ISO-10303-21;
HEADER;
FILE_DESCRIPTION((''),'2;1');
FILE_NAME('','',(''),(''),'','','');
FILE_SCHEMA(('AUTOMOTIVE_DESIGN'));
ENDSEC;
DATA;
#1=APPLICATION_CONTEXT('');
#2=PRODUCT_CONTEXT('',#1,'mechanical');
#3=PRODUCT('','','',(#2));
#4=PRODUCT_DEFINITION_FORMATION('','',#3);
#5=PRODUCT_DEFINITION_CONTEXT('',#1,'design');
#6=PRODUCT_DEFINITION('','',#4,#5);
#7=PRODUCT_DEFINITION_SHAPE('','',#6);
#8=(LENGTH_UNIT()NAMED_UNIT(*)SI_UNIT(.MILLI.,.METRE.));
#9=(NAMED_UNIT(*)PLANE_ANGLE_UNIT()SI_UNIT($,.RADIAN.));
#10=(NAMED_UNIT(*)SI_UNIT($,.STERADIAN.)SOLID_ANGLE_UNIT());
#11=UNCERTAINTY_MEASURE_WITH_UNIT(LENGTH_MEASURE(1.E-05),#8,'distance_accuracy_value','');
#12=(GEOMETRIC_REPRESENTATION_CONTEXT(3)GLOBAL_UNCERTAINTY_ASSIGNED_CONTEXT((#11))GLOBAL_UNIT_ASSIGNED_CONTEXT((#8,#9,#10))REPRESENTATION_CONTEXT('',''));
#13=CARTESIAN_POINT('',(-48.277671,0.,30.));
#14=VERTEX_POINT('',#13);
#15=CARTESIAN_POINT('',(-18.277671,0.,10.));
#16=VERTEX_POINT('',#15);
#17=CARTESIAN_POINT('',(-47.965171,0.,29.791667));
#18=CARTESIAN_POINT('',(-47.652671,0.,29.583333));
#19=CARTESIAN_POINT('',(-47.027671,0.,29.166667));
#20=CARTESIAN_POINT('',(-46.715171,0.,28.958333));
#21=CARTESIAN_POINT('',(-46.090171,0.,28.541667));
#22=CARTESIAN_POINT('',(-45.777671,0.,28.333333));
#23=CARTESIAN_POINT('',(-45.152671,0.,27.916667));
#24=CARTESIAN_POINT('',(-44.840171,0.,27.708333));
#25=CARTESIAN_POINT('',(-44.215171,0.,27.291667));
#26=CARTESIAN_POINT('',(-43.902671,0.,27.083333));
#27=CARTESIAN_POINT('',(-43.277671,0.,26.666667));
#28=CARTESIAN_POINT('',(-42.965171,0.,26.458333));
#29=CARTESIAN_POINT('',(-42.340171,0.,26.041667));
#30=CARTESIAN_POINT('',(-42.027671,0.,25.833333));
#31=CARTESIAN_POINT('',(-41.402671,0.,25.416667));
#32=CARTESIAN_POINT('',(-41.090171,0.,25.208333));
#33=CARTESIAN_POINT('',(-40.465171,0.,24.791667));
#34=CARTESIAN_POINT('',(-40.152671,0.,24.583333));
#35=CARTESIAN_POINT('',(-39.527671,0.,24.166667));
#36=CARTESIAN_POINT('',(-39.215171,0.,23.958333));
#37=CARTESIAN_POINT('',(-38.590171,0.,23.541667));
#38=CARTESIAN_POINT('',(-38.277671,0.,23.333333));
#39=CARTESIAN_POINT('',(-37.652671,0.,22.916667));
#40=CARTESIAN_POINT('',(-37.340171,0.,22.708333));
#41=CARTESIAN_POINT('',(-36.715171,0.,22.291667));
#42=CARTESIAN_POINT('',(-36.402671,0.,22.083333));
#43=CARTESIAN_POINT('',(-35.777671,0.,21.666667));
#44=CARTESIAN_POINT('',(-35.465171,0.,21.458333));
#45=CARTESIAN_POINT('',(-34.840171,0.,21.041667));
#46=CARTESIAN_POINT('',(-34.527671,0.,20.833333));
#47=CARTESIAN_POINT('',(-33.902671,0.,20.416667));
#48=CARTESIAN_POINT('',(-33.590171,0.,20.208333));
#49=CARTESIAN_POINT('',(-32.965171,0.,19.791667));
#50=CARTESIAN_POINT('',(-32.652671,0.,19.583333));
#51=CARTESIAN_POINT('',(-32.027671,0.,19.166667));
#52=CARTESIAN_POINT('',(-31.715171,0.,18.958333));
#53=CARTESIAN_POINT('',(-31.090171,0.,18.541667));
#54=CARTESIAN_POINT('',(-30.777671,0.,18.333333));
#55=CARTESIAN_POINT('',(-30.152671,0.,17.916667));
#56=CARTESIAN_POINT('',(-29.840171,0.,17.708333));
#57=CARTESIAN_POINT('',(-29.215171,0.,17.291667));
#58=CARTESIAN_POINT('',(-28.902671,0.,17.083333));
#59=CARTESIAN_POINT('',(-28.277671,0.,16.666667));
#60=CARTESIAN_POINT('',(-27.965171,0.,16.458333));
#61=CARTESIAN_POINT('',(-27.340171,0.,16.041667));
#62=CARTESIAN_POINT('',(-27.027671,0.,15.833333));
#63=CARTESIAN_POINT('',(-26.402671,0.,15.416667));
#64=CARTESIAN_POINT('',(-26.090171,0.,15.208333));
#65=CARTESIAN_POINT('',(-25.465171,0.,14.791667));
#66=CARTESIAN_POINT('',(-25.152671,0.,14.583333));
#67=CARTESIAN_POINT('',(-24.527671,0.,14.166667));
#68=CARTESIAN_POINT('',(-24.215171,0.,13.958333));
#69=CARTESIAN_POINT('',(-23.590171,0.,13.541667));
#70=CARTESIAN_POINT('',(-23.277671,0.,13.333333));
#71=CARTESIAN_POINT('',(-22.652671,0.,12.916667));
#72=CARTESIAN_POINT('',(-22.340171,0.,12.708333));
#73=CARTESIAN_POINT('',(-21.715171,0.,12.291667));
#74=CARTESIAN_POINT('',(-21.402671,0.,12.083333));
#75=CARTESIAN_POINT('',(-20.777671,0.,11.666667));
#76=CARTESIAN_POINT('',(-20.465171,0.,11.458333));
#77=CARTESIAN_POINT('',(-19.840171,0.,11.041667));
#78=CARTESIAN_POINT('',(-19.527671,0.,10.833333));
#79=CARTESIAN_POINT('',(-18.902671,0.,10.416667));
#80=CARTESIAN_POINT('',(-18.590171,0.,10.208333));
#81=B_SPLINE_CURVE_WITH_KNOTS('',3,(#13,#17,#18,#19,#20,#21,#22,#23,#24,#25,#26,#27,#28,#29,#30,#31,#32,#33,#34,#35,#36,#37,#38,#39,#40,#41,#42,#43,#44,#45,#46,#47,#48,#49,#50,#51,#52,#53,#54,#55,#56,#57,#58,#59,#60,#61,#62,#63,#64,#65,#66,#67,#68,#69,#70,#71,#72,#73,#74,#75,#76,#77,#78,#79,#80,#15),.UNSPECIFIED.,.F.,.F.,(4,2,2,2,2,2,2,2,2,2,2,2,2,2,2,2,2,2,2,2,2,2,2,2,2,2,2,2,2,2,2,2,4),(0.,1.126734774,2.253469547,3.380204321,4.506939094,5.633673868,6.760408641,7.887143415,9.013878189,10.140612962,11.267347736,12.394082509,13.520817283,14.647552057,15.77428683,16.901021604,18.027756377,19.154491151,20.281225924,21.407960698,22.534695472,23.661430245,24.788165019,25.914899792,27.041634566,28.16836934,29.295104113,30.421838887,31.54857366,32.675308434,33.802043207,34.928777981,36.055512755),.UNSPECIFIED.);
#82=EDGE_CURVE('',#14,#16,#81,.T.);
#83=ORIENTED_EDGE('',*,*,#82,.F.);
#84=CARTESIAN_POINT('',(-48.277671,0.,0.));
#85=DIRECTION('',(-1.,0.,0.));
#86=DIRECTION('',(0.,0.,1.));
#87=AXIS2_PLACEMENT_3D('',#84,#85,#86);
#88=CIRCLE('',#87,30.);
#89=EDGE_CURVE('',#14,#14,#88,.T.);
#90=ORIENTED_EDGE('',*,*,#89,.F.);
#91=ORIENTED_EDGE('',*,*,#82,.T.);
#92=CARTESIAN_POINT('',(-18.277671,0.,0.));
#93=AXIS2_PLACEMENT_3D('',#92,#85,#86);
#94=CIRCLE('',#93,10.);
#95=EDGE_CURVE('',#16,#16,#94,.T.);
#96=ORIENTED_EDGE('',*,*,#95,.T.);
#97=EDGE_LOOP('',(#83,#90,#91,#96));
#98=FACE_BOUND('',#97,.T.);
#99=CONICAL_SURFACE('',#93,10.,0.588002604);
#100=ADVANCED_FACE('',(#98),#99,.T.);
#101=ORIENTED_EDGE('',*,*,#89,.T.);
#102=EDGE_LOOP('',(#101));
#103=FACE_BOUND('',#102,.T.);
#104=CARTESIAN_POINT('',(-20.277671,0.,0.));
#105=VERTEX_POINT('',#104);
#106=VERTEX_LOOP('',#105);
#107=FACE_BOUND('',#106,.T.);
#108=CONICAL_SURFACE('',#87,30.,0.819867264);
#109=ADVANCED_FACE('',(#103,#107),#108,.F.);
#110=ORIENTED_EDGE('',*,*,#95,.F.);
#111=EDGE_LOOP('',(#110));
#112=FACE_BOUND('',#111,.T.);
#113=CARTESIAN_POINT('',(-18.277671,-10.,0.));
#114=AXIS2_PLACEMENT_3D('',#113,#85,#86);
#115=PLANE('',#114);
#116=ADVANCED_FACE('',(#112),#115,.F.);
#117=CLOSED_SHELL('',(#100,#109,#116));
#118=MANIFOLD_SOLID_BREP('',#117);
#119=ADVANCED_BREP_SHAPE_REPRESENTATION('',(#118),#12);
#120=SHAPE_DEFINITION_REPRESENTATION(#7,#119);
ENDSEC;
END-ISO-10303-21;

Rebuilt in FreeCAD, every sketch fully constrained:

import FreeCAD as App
import Part
import Sketcher

doc = App.newDocument("Part")
params = doc.addObject("Spreadsheet::Sheet", "Params")
for row, (alias, value) in enumerate([
    ("sketch1_width", "2 mm"),
    ("sketch1_height", "10 mm"),
    ("revolution_angle", "360 deg"),
], start=1):
    params.set(f"A{row}", alias)
    params.set(f"B{row}", "=" + value)
    params.setAlias(f"B{row}", alias)

body = doc.addObject("PartDesign::Body", "Body")

# Sketch on XY plane
sketch1 = body.newObject("Sketcher::SketchObject", "Sketch")
sketch1.AttachmentSupport = (doc.getObject("XY_Plane"), [""])
sketch1.MapMode = "FlatFace"
sketch1.addGeometry(Part.LineSegment(App.Vector(-18.3, 10, 0), App.Vector(-48.3, 30, 0)), False)
sketch1.addGeometry(Part.LineSegment(App.Vector(-48.3, 30, 0), App.Vector(-20.3, 0, 0)), False)
sketch1.addGeometry(Part.LineSegment(App.Vector(-20.3, 0, 0), App.Vector(-18.3, 0, 0)), False)
sketch1.addGeometry(Part.LineSegment(App.Vector(-18.3, 0, 0), App.Vector(-18.3, 10, 0)), False)
sketch1.addConstraint(Sketcher.Constraint("Coincident", 0, 2, 1, 1))
sketch1.addConstraint(Sketcher.Constraint("Coincident", 1, 2, 2, 1))
sketch1.addConstraint(Sketcher.Constraint("Coincident", 2, 2, 3, 1))
sketch1.addConstraint(Sketcher.Constraint("Coincident", 3, 2, 0, 1))
sketch1.addConstraint(Sketcher.Constraint("Horizontal", 2))
sketch1.addConstraint(Sketcher.Constraint("Vertical", 3))
sketch1.addConstraint(Sketcher.Constraint("PointOnObject", 1, 2, -1))
sketch1.addConstraint(Sketcher.Constraint("DistanceX", 2, 1, 2, 2, 2.0))
sketch1.addConstraint(Sketcher.Constraint("DistanceY", 3, 1, 3, 2, 10.0))
sketch1.addConstraint(Sketcher.Constraint("DistanceY", -1, 1, 0, 2, 30.0))
sketch1.addConstraint(Sketcher.Constraint("DistanceX", 0, 2, 1, 2, 28.0))
sketch1.addConstraint(Sketcher.Constraint("DistanceX", 0, 2, -1, 1, 48.277671))
sketch1.setExpression("Constraints[7]", "Params.sketch1_width")
sketch1.setExpression("Constraints[8]", "Params.sketch1_height")
revolution = body.newObject("PartDesign::Revolution", "Revolution")
revolution.Profile = sketch1
revolution.ReferenceAxis = (sketch1, ["H_Axis"])
revolution.setExpression("Angle", "Params.revolution_angle")

doc.recompute()
